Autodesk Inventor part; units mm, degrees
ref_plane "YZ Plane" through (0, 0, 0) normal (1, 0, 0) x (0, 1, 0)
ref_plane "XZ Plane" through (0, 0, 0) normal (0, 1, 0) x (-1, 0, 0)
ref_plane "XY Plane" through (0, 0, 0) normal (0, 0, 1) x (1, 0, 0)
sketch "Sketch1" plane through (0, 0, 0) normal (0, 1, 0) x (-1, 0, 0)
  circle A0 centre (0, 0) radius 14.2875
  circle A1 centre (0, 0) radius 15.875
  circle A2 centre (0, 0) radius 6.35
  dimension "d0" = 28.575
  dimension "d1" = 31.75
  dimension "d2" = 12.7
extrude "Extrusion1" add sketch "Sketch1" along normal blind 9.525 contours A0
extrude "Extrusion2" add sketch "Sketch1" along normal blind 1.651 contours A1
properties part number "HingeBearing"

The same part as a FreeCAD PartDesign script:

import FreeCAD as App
import Part
import Sketcher
from FreeCAD import Vector
Q = App.Units.Quantity

doc = App.newDocument("Part")
params = doc.addObject("Spreadsheet::Sheet", "Params")
for row, (alias, value) in enumerate([
    ("sketch1_diameter", "0.5 in"),
    ("sketch1_diameter2", "1.125 in"),
    ("pad1_length", "0.375 in"),
    ("sketch2_diameter", "1.25 in"),
    ("sketch2_diameter2", "1.125 in"),
    ("pad2_length", "0.065 in"),
], start=1):
    params.set(f"A{row}", alias)
    params.set(f"B{row}", "=" + value)
    params.setAlias(f"B{row}", alias)

body = doc.addObject("PartDesign::Body", "Body")

# Sketch on XZ plane
sketch1 = body.newObject("Sketcher::SketchObject", "Sketch")
sketch1.AttachmentSupport = (doc.getObject("XZ_Plane"), [""])
sketch1.MapMode = "FlatFace"
sketch1.addGeometry(Part.Circle(Vector(0, 0, 0), Vector(0, 0, 1), 14), False)
sketch1.addGeometry(Part.Circle(Vector(0, 0, 0), Vector(0, 0, 1), 6), False)
sketch1.addConstraint(Sketcher.Constraint("Coincident", 0, 3, -1, 1))
sketch1.addConstraint(Sketcher.Constraint("Coincident", 1, 3, -1, 1))
sketch1.addConstraint(Sketcher.Constraint("Diameter", 1, Q("0.5 in")))
sketch1.addConstraint(Sketcher.Constraint("Diameter", 0, Q("1.125 in")))
sketch1.setExpression("Constraints[2]", "Params.sketch1_diameter")
sketch1.setExpression("Constraints[3]", "Params.sketch1_diameter2")
pad1 = body.newObject("PartDesign::Pad", "Pad")
pad1.Profile = sketch1
pad1.setExpression("Length", "Params.pad1_length")
pad1.Reversed = True

# Sketch on XZ plane
sketch2 = body.newObject("Sketcher::SketchObject", "Sketch001")
sketch2.AttachmentSupport = (doc.getObject("XZ_Plane"), [""])
sketch2.MapMode = "FlatFace"
sketch2.addGeometry(Part.Circle(Vector(0, 0, 0), Vector(0, 0, 1), 16), False)
sketch2.addGeometry(Part.Circle(Vector(0, 0, 0), Vector(0, 0, 1), 14), False)
sketch2.addConstraint(Sketcher.Constraint("Coincident", 0, 3, -1, 1))
sketch2.addConstraint(Sketcher.Constraint("Coincident", 1, 3, -1, 1))
sketch2.addConstraint(Sketcher.Constraint("Diameter", 0, Q("1.25 in")))
sketch2.addConstraint(Sketcher.Constraint("Diameter", 1, Q("1.125 in")))
sketch2.setExpression("Constraints[2]", "Params.sketch2_diameter")
sketch2.setExpression("Constraints[3]", "Params.sketch2_diameter2")
pad2 = body.newObject("PartDesign::Pad", "Pad001")
pad2.Profile = sketch2
pad2.setExpression("Length", "Params.pad2_length")
pad2.Reversed = True

doc.recompute()
